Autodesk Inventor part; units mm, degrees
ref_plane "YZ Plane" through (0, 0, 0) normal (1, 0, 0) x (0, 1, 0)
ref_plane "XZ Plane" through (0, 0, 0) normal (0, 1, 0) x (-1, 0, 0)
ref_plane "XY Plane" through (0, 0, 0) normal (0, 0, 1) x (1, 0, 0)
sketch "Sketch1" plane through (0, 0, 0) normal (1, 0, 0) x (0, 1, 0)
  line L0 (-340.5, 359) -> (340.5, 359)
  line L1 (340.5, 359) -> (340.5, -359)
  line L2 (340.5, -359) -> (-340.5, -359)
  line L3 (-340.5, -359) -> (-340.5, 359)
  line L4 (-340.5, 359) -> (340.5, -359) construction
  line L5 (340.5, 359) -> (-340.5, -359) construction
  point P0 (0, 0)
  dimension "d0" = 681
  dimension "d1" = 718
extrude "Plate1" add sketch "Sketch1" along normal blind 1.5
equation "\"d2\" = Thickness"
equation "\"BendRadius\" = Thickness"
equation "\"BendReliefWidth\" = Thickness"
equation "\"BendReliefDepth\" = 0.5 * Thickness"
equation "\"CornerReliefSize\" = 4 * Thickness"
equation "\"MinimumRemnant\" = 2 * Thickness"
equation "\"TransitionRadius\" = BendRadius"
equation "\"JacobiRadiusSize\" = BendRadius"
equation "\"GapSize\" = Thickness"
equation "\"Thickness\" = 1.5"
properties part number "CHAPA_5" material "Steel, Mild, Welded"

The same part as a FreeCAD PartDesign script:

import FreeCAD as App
import Part
import Sketcher
Q = App.Units.Quantity


def add_polygon(sketch, points):
    """Adds a closed chain of lines whose ends are joined by coincident constraints."""
    first, n = sketch.GeometryCount, len(points)
    for a, b in zip(points, points[1:] + points[:1]):
        sketch.addGeometry(Part.LineSegment(App.Vector(*a, 0), App.Vector(*b, 0)), False)
    for i in range(n):
        sketch.addConstraint(Sketcher.Constraint("Coincident", first + i, 2, first + (i + 1) % n, 1))

doc = App.newDocument("Part")
body = doc.addObject("PartDesign::Body", "Body")

sketch1 = body.newObject("Sketcher::SketchObject", "Sketch")
sketch1.AttachmentSupport = (doc.getObject("YZ_Plane"), [""])
sketch1.MapMode = "FlatFace"
add_polygon(sketch1, [(340.5, 359), (-340.5, 359), (-340.5, -359), (340.5, -359)])
sketch1.addConstraint([
    Sketcher.Constraint("Horizontal", 0),
    Sketcher.Constraint("Vertical", 1),
    Sketcher.Constraint("Horizontal", 2),
    Sketcher.Constraint("Vertical", 3),
    Sketcher.Constraint("Symmetric", 0, 2, 2, 2, -1, 1),
    Sketcher.Constraint("DistanceX", 0, 2, 0, 1, Q("681 mm")),
    Sketcher.Constraint("DistanceY", 1, 2, 1, 1, Q("718 mm")),
])
pad1 = body.newObject("PartDesign::Pad", "Pad")
pad1.Profile = sketch1
pad1.Length = 1.5

doc.recompute()
